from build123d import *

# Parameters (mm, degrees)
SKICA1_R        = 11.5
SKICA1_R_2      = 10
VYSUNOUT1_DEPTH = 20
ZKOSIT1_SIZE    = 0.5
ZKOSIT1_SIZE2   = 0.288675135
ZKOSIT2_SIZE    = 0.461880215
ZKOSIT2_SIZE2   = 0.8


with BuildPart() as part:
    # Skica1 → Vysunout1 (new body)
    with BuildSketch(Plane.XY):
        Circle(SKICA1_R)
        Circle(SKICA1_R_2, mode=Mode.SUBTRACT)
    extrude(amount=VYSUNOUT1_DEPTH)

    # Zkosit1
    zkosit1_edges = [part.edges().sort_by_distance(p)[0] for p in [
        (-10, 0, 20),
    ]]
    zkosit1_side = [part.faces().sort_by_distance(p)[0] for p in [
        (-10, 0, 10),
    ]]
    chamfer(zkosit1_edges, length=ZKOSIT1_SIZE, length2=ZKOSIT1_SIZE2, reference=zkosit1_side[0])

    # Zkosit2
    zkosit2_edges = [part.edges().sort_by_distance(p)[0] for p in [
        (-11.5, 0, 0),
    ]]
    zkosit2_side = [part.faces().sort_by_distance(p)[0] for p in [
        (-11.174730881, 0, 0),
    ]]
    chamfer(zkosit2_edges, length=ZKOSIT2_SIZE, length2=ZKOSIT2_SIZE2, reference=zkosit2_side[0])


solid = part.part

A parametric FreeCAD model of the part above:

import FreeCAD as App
import Part
import Sketcher
from FreeCAD import Vector


def edges_at(feature, points):
    """Names of the edges that pass closest to the given points."""
    edges = feature.Shape.Edges
    near = lambda p: min(range(len(edges)), key=lambda i: edges[i].distToShape(Part.Vertex(*p))[0])
    return sorted({f"Edge{near(p) + 1}" for p in points})

doc = App.newDocument("Part")
body = doc.addObject("PartDesign::Body", "Body")

sketch1 = body.newObject("Sketcher::SketchObject", "Sketch")
sketch1.AttachmentSupport = (doc.getObject("XY_Plane"), [""])
sketch1.MapMode = "FlatFace"
sketch1.addGeometry(Part.Circle(Vector(0, 0, 0), Vector(0, 0, 1), 12), False)
sketch1.addGeometry(Part.Circle(Vector(0, 0, 0), Vector(0, 0, 1), 10), False)
sketch1.addConstraint(Sketcher.Constraint("Coincident", 0, 3, -1, 1))
sketch1.addConstraint(Sketcher.Constraint("Coincident", 1, 3, -1, 1))
sketch1.addConstraint(Sketcher.Constraint("Diameter", 0, 23.0))
sketch1.addConstraint(Sketcher.Constraint("Diameter", 1, 20.0))
pad1 = body.newObject("PartDesign::Pad", "Pad")
pad1.Profile = sketch1
pad1.Length = 20
doc.recompute()

chamfer = body.newObject("PartDesign::Chamfer", "Chamfer")
chamfer.Base = (pad1, edges_at(pad1, [(-10, 0, 20)]))
chamfer.ChamferType = "Two distances"
chamfer.Size = 0.5
chamfer.Size2 = 0.288675
doc.recompute()

chamfer2 = body.newObject("PartDesign::Chamfer", "Chamfer001")
chamfer2.Base = (chamfer, edges_at(chamfer, [(-11.5, 0, 0)]))
chamfer2.ChamferType = "Two distances"
chamfer2.Size = 0.46188
chamfer2.Size2 = 0.8

doc.recompute()
